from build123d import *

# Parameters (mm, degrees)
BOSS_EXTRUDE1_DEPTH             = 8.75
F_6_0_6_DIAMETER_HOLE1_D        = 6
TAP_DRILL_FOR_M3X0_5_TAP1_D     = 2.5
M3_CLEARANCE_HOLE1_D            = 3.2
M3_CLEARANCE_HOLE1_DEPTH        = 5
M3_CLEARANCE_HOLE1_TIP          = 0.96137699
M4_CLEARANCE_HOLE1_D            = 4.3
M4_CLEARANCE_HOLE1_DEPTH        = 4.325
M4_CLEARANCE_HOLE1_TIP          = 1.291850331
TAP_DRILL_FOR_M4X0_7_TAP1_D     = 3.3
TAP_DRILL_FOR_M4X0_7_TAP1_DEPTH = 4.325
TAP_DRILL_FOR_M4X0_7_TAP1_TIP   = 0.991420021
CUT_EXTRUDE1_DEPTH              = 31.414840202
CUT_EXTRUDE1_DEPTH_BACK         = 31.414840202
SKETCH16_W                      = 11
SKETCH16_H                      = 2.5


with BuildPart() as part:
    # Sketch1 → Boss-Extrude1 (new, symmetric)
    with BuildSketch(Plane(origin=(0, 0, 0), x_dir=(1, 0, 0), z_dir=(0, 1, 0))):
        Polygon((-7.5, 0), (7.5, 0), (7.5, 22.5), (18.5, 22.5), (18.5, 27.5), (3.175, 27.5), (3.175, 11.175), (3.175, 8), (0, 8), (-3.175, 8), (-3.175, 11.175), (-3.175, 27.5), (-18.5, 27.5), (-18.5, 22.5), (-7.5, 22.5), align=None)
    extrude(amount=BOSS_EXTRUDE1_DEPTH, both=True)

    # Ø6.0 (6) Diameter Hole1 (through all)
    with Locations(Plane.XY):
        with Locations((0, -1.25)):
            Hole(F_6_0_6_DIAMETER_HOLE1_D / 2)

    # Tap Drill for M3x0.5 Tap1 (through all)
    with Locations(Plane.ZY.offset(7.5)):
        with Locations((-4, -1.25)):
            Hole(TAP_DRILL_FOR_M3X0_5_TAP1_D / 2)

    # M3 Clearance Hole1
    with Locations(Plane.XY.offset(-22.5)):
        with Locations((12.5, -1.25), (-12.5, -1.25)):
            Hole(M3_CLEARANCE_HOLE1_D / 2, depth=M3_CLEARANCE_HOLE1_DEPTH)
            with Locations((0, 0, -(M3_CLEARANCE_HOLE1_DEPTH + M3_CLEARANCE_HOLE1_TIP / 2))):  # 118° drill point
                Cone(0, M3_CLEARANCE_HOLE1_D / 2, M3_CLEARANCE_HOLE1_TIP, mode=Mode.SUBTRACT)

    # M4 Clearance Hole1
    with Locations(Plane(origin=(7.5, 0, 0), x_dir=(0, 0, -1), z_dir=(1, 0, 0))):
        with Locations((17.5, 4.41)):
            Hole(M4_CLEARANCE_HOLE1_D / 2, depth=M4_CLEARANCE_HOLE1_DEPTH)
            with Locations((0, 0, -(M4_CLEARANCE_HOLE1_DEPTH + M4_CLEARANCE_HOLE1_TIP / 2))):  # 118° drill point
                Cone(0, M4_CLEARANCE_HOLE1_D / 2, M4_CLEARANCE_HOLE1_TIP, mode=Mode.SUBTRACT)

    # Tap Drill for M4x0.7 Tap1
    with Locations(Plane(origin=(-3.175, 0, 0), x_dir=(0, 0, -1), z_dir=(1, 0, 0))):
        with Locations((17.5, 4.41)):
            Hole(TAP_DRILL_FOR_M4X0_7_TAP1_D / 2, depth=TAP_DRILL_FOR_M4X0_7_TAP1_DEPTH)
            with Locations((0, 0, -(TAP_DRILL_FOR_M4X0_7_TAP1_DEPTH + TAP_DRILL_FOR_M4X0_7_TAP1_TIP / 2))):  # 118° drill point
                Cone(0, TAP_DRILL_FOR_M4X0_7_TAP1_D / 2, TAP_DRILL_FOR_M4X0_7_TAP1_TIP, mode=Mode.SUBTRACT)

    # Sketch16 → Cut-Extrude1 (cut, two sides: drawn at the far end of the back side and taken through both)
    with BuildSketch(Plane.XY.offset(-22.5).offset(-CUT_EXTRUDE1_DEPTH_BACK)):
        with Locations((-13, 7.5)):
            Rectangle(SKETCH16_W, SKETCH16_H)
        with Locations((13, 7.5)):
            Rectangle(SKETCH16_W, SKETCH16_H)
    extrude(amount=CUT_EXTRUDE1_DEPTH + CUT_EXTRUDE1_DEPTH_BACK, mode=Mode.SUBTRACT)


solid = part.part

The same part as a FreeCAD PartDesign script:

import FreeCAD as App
import Part
import Sketcher
from FreeCAD import Vector


def add_polygon(sketch, points):
    """Adds a closed chain of lines whose ends are joined by coincident constraints."""
    first, n = sketch.GeometryCount, len(points)
    for a, b in zip(points, points[1:] + points[:1]):
        sketch.addGeometry(Part.LineSegment(App.Vector(*a, 0), App.Vector(*b, 0)), False)
    for i in range(n):
        sketch.addConstraint(Sketcher.Constraint("Coincident", first + i, 2, first + (i + 1) % n, 1))

doc = App.newDocument("Part")
body = doc.addObject("PartDesign::Body", "Body")

sketch1 = body.newObject("Sketcher::SketchObject", "Sketch")
sketch1.AttachmentSupport = (doc.getObject("XZ_Plane"), [""])
sketch1.MapMode = "FlatFace"
add_polygon(sketch1, [(-8, 0), (8, 0), (8, -22), (18, -22), (18, -28), (3, -28), (3, -8), (-3, -8), (-3, -28), (-18, -28), (-18, -22), (-8, -22)])
sketch1.addConstraint([
    Sketcher.Constraint("Horizontal", 0),
    Sketcher.Constraint("Vertical", 1),
    Sketcher.Constraint("Horizontal", 2),
    Sketcher.Constraint("Vertical", 3),
    Sketcher.Constraint("Horizontal", 4),
    Sketcher.Constraint("Vertical", 5),
    Sketcher.Constraint("Horizontal", 6),
    Sketcher.Constraint("Vertical", 7),
    Sketcher.Constraint("Horizontal", 8),
    Sketcher.Constraint("Vertical", 9),
    Sketcher.Constraint("Horizontal", 10),
    Sketcher.Constraint("Vertical", 11),
    Sketcher.Constraint("Symmetric", 0, 2, 11, 2, -1, 1),
    Sketcher.Constraint("Symmetric", 4, 2, 7, 2, -2),
    Sketcher.Constraint("Symmetric", 2, 2, 9, 2, -2),
    Sketcher.Constraint("DistanceX", 0, 1, 0, 2, 15.0),
    Sketcher.Constraint("DistanceX", 2, 1, 2, 2, 11.0),
    Sketcher.Constraint("DistanceY", 3, 2, 3, 1, 5.0),
    Sketcher.Constraint("DistanceY", 1, 2, 1, 1, 22.5),
    Sketcher.Constraint("DistanceY", 5, 1, 5, 2, 19.5),
    Sketcher.Constraint("DistanceX", 6, 2, 6, 1, 6.35),
])
pad1 = body.newObject("PartDesign::Pad", "Pad")
pad1.Profile = sketch1
pad1.Length = 17.5
pad1.Midplane = True

sketch2 = body.newObject("Sketcher::SketchObject", "Sketch001")
sketch2.AttachmentSupport = (doc.getObject("XY_Plane"), [""])
sketch2.MapMode = "FlatFace"
sketch2.addGeometry(Part.Circle(Vector(0, -1.2, 0), Vector(0, 0, 1), 3), False)
sketch2.addConstraint([
    Sketcher.Constraint("PointOnObject", 0, 3, -2),
    Sketcher.Constraint("Diameter", 0, 6.0),
    Sketcher.Constraint("DistanceY", 0, 3, -1, 1, 1.25),
])
doc.recompute()
hole = body.newObject("PartDesign::Hole", "Hole")
hole.Profile = sketch2
hole.ThreadType = "None"
hole.Diameter = 6
hole.DepthType = "ThroughAll"

sketch3 = body.newObject("Sketcher::SketchObject", "Sketch002")
sketch3.AttachmentSupport = (doc.getObject("YZ_Plane"), [""])
sketch3.MapMode = "FlatFace"
sketch3.AttachmentOffset = App.Placement(Vector(0, 0, -7.5), App.Rotation())
sketch3.addGeometry(Part.Circle(Vector(-1.2, -4, 0), Vector(0, 0, 1), 1.2), False)
sketch3.addConstraint([
    Sketcher.Constraint("Diameter", 0, 2.5),
    Sketcher.Constraint("DistanceY", 0, 3, -1, 1, 4.0),
    Sketcher.Constraint("DistanceX", 0, 3, -1, 1, 1.25),
])
doc.recompute()
hole2 = body.newObject("PartDesign::Hole", "Hole001")
hole2.Profile = sketch3
hole2.ThreadType = "None"
hole2.Diameter = 2.5
hole2.DepthType = "ThroughAll"
hole2.Reversed = True

sketch4 = body.newObject("Sketcher::SketchObject", "Sketch003")
sketch4.AttachmentSupport = (doc.getObject("XY_Plane"), [""])
sketch4.MapMode = "FlatFace"
sketch4.AttachmentOffset = App.Placement(Vector(0, 0, -22.5), App.Rotation())
sketch4.addGeometry([
    Part.Circle(Vector(12.5, -1.2, 0), Vector(0, 0, 1), 1.6),
    Part.Circle(Vector(-12.5, -1.2, 0), Vector(0, 0, 1), 1.6),
], False)
sketch4.addConstraint([
    Sketcher.Constraint("Equal", 0, 1),
    Sketcher.Constraint("Symmetric", 0, 3, 1, 3, -2),
    Sketcher.Constraint("Diameter", 0, 3.2),
    Sketcher.Constraint("DistanceX", 1, 3, 0, 3, 25.0),
    Sketcher.Constraint("DistanceY", 0, 3, -1, 1, 1.25),
])
doc.recompute()
hole3 = body.newObject("PartDesign::Hole", "Hole002")
hole3.Profile = sketch4
hole3.ThreadType = "None"
hole3.Diameter = 3.2
hole3.DepthType = "Dimension"
hole3.Depth = 5
hole3.DrillPoint = "Angled"
hole3.DrillPointAngle = 118

sketch5 = body.newObject("Sketcher::SketchObject", "Sketch004")
sketch5.AttachmentSupport = (doc.getObject("YZ_Plane"), [""])
sketch5.MapMode = "FlatFace"
sketch5.AttachmentOffset = App.Placement(Vector(0, 0, 7.5), App.Rotation())
sketch5.addGeometry(Part.Circle(Vector(4.4, -17.5, 0), Vector(0, 0, 1), 2.1), False)
sketch5.addConstraint([
    Sketcher.Constraint("Diameter", 0, 4.3),
    Sketcher.Constraint("DistanceY", 0, 3, -1, 1, 17.5),
    Sketcher.Constraint("DistanceX", -1, 1, 0, 3, 4.41),
])
doc.recompute()
hole4 = body.newObject("PartDesign::Hole", "Hole003")
hole4.Profile = sketch5
hole4.ThreadType = "None"
hole4.Diameter = 4.3
hole4.DepthType = "Dimension"
hole4.Depth = 4.325
hole4.DrillPoint = "Angled"
hole4.DrillPointAngle = 118

sketch6 = body.newObject("Sketcher::SketchObject", "Sketch005")
sketch6.AttachmentSupport = (doc.getObject("YZ_Plane"), [""])
sketch6.MapMode = "FlatFace"
sketch6.AttachmentOffset = App.Placement(Vector(0, 0, -3.175), App.Rotation())
sketch6.addGeometry(Part.Circle(Vector(4.4, -17.5, 0), Vector(0, 0, 1), 1.6), False)
sketch6.addConstraint([
    Sketcher.Constraint("Diameter", 0, 3.3),
    Sketcher.Constraint("DistanceY", 0, 3, -1, 1, 17.5),
    Sketcher.Constraint("DistanceX", -1, 1, 0, 3, 4.41),
])
doc.recompute()
hole5 = body.newObject("PartDesign::Hole", "Hole004")
hole5.Profile = sketch6
hole5.ThreadType = "None"
hole5.Diameter = 3.3
hole5.DepthType = "Dimension"
hole5.Depth = 4.325
hole5.DrillPoint = "Angled"
hole5.DrillPointAngle = 118

sketch7 = body.newObject("Sketcher::SketchObject", "Sketch006")
sketch7.AttachmentSupport = (doc.getObject("XY_Plane"), [""])
sketch7.MapMode = "FlatFace"
sketch7.AttachmentOffset = App.Placement(Vector(0, 0, -22.5), App.Rotation())
add_polygon(sketch7, [(-18.5, 8.8), (-18.5, 6.2), (-7.5, 6.2), (-7.5, 8.8)])
add_polygon(sketch7, [(7.5, 8.8), (7.5, 6.2), (18.5, 6.2), (18.5, 8.8)])
sketch7.addConstraint([
    Sketcher.Constraint("Vertical", 0),
    Sketcher.Constraint("Horizontal", 1),
    Sketcher.Constraint("Vertical", 2),
    Sketcher.Constraint("Horizontal", 3),
    Sketcher.Constraint("Vertical", 4),
    Sketcher.Constraint("Horizontal", 5),
    Sketcher.Constraint("Vertical", 6),
    Sketcher.Constraint("Horizontal", 7),
    Sketcher.Constraint("Symmetric", 1, 2, 4, 2, -2),
    Sketcher.Constraint("Symmetric", 3, 2, 6, 2, -2),
    Sketcher.Constraint("DistanceX", 1, 1, 1, 2, 11.0),
    Sketcher.Constraint("DistanceY", 0, 2, 0, 1, 2.5),
    Sketcher.Constraint("DistanceX", 1, 2, 4, 2, 15.0),
    Sketcher.Constraint("DistanceY", -1, 1, 0, 2, 6.25),
])
pocket1 = body.newObject("PartDesign::Pocket", "Pocket")
pocket1.Profile = sketch7
pocket1.Type = "ThroughAll"
pocket1.Midplane = True

doc.recompute()
